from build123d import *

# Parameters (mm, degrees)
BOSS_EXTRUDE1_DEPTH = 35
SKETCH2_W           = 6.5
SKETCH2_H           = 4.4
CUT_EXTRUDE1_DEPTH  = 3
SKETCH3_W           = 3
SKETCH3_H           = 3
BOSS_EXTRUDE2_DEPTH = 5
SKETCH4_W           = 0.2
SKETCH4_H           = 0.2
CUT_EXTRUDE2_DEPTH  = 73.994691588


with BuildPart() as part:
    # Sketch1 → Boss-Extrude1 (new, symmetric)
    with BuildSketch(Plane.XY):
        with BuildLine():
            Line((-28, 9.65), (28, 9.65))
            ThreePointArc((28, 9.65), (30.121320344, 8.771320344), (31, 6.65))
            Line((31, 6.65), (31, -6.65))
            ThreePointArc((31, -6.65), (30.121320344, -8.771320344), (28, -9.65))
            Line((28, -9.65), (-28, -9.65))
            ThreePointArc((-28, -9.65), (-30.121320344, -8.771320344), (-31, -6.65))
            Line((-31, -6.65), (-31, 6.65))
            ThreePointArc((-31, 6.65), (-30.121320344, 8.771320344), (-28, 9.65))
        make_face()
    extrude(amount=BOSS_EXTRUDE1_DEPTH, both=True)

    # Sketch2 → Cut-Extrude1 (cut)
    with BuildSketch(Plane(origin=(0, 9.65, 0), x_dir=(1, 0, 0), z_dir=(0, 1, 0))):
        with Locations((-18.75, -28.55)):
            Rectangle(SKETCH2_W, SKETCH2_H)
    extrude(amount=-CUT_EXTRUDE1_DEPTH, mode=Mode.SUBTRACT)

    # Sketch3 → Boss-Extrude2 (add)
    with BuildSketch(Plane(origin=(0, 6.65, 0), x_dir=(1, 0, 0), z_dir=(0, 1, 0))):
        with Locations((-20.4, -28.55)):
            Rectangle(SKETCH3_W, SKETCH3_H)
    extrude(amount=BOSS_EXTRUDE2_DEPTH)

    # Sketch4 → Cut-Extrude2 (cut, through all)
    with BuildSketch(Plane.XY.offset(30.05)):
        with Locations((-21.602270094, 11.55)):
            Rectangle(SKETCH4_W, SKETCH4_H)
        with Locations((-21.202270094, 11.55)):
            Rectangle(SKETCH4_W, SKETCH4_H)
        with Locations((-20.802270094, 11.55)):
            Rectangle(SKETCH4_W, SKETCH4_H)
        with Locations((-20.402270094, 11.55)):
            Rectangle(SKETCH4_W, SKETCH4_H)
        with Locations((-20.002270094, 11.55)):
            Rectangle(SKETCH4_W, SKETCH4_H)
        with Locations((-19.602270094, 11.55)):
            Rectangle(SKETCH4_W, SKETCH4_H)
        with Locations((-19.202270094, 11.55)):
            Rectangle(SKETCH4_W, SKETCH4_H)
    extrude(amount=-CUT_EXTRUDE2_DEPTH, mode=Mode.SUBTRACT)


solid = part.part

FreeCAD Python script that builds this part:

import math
import FreeCAD as App
import Part
import Sketcher

V = App.Vector


def add_polygon(sketch, points):
    """Adds a closed chain of lines whose ends are joined by coincident constraints."""
    first, n = sketch.GeometryCount, len(points)
    for a, b in zip(points, points[1:] + points[:1]):
        sketch.addGeometry(Part.LineSegment(App.Vector(*a, 0), App.Vector(*b, 0)), False)
    for i in range(n):
        sketch.addConstraint(Sketcher.Constraint("Coincident", first + i, 2, first + (i + 1) % n, 1))

doc = App.newDocument("Part")
body = doc.addObject("PartDesign::Body", "Body")

sketch1 = body.newObject("Sketcher::SketchObject", "Sketch")
sketch1.AttachmentSupport = (doc.getObject("XY_Plane"), [""])
sketch1.MapMode = "FlatFace"
sketch1.addGeometry(Part.LineSegment(V(28, 9.7, 0), V(-28, 9.7, 0)), False)
sketch1.addGeometry(Part.ArcOfCircle(Part.Circle(V(-28, 6.7, 0), V(0, 0, 1), 3), math.radians(90), math.radians(180)), False)
sketch1.addGeometry(Part.LineSegment(V(-31, 6.7, 0), V(-31, -6.7, 0)), False)
sketch1.addGeometry(Part.ArcOfCircle(Part.Circle(V(-28, -6.7, 0), V(0, 0, 1), 3), math.radians(180), math.radians(270)), False)
sketch1.addGeometry(Part.LineSegment(V(-28, -9.7, 0), V(28, -9.7, 0)), False)
sketch1.addGeometry(Part.ArcOfCircle(Part.Circle(V(28, -6.7, 0), V(0, 0, 1), 3), math.radians(-90), math.radians(0)), False)
sketch1.addGeometry(Part.LineSegment(V(31, -6.7, 0), V(31, 6.7, 0)), False)
sketch1.addGeometry(Part.ArcOfCircle(Part.Circle(V(28, 6.7, 0), V(0, 0, 1), 3), math.radians(0), math.radians(90)), False)
sketch1.addConstraint(Sketcher.Constraint("Tangent", 0, 2, 1, 1))
sketch1.addConstraint(Sketcher.Constraint("Tangent", 1, 2, 2, 1))
sketch1.addConstraint(Sketcher.Constraint("Tangent", 2, 2, 3, 1))
sketch1.addConstraint(Sketcher.Constraint("Tangent", 3, 2, 4, 1))
sketch1.addConstraint(Sketcher.Constraint("Tangent", 4, 2, 5, 1))
sketch1.addConstraint(Sketcher.Constraint("Tangent", 5, 2, 6, 1))
sketch1.addConstraint(Sketcher.Constraint("Tangent", 6, 2, 7, 1))
sketch1.addConstraint(Sketcher.Constraint("Tangent", 7, 2, 0, 1))
sketch1.addConstraint(Sketcher.Constraint("Horizontal", 0))
sketch1.addConstraint(Sketcher.Constraint("Vertical", 2))
sketch1.addConstraint(Sketcher.Constraint("Horizontal", 4))
sketch1.addConstraint(Sketcher.Constraint("Vertical", 6))
sketch1.addConstraint(Sketcher.Constraint("Equal", 1, 3))
sketch1.addConstraint(Sketcher.Constraint("Equal", 3, 5))
sketch1.addConstraint(Sketcher.Constraint("Equal", 5, 7))
sketch1.addConstraint(Sketcher.Constraint("Symmetric", 1, 3, 5, 3, -1, 1))
sketch1.addConstraint(Sketcher.Constraint("Radius", 1, 3.0))
sketch1.addConstraint(Sketcher.Constraint("DistanceX", 0, 2, 0, 1, 56.0))
sketch1.addConstraint(Sketcher.Constraint("DistanceY", 2, 2, 2, 1, 13.3))
pad1 = body.newObject("PartDesign::Pad", "Pad")
pad1.Profile = sketch1
pad1.Length = 70
pad1.Midplane = True

sketch2 = body.newObject("Sketcher::SketchObject", "Sketch001")
sketch2.AttachmentSupport = (doc.getObject("XZ_Plane"), [""])
sketch2.MapMode = "FlatFace"
sketch2.AttachmentOffset = App.Placement(V(0, 0, -9.65), App.Rotation())
add_polygon(sketch2, [(-22, 26.4), (-22, 30.8), (-15.5, 30.8), (-15.5, 26.4)])
sketch2.addConstraint(Sketcher.Constraint("Vertical", 0))
sketch2.addConstraint(Sketcher.Constraint("Horizontal", 1))
sketch2.addConstraint(Sketcher.Constraint("Vertical", 2))
sketch2.addConstraint(Sketcher.Constraint("Horizontal", 3))
sketch2.addConstraint(Sketcher.Constraint("DistanceX", 1, 1, 1, 2, 6.5))
sketch2.addConstraint(Sketcher.Constraint("DistanceY", 0, 1, 0, 2, 4.4))
sketch2.addConstraint(Sketcher.Constraint("DistanceX", 0, 2, -1, 1, 22.0))
sketch2.addConstraint(Sketcher.Constraint("DistanceY", -1, 1, 0, 2, 30.75))
pocket1 = body.newObject("PartDesign::Pocket", "Pocket")
pocket1.Profile = sketch2
pocket1.Length = 3
pocket1.Reversed = True

sketch3 = body.newObject("Sketcher::SketchObject", "Sketch002")
sketch3.AttachmentSupport = (doc.getObject("XZ_Plane"), [""])
sketch3.MapMode = "FlatFace"
sketch3.AttachmentOffset = App.Placement(V(0, 0, -6.65), App.Rotation())
add_polygon(sketch3, [(-21.9, 27.1), (-21.9, 30.1), (-18.9, 30.1), (-18.9, 27.1)])
sketch3.addConstraint(Sketcher.Constraint("Vertical", 0))
sketch3.addConstraint(Sketcher.Constraint("Horizontal", 1))
sketch3.addConstraint(Sketcher.Constraint("Vertical", 2))
sketch3.addConstraint(Sketcher.Constraint("Horizontal", 3))
sketch3.addConstraint(Sketcher.Constraint("Equal", 3, 0))
sketch3.addConstraint(Sketcher.Constraint("DistanceX", 1, 1, 1, 2, 3.0))
sketch3.addConstraint(Sketcher.Constraint("DistanceX", 0, 2, -1, 1, 21.9))
sketch3.addConstraint(Sketcher.Constraint("DistanceY", -1, 1, 0, 2, 30.05))
pad2 = body.newObject("PartDesign::Pad", "Pad001")
pad2.Profile = sketch3
pad2.Length = 5
pad2.Reversed = True

sketch4 = body.newObject("Sketcher::SketchObject", "Sketch003")
sketch4.AttachmentSupport = (doc.getObject("XY_Plane"), [""])
sketch4.MapMode = "FlatFace"
sketch4.AttachmentOffset = App.Placement(V(0, 0, 30.05), App.Rotation())
add_polygon(sketch4, [(-21.7, 11.65), (-21.7, 11.45), (-21.5, 11.45), (-21.5, 11.65)])
add_polygon(sketch4, [(-21.3, 11.65), (-21.3, 11.45), (-21.1, 11.45), (-21.1, 11.65)])
add_polygon(sketch4, [(-20.9, 11.65), (-20.9, 11.45), (-20.7, 11.45), (-20.7, 11.65)])
add_polygon(sketch4, [(-20.5, 11.65), (-20.5, 11.45), (-20.3, 11.45), (-20.3, 11.65)])
add_polygon(sketch4, [(-20.1, 11.65), (-20.1, 11.45), (-19.9, 11.45), (-19.9, 11.65)])
add_polygon(sketch4, [(-19.7, 11.65), (-19.7, 11.45), (-19.5, 11.45), (-19.5, 11.65)])
add_polygon(sketch4, [(-19.3, 11.65), (-19.3, 11.45), (-19.1, 11.45), (-19.1, 11.65)])
sketch4.addConstraint(Sketcher.Constraint("Vertical", 0))
sketch4.addConstraint(Sketcher.Constraint("Horizontal", 1))
sketch4.addConstraint(Sketcher.Constraint("Vertical", 2))
sketch4.addConstraint(Sketcher.Constraint("Horizontal", 3))
sketch4.addConstraint(Sketcher.Constraint("Vertical", 4))
sketch4.addConstraint(Sketcher.Constraint("Horizontal", 5))
sketch4.addConstraint(Sketcher.Constraint("Vertical", 6))
sketch4.addConstraint(Sketcher.Constraint("Horizontal", 7))
sketch4.addConstraint(Sketcher.Constraint("Vertical", 8))
sketch4.addConstraint(Sketcher.Constraint("Horizontal", 9))
sketch4.addConstraint(Sketcher.Constraint("Vertical", 10))
sketch4.addConstraint(Sketcher.Constraint("Horizontal", 11))
sketch4.addConstraint(Sketcher.Constraint("Vertical", 12))
sketch4.addConstraint(Sketcher.Constraint("Horizontal", 13))
sketch4.addConstraint(Sketcher.Constraint("Vertical", 14))
sketch4.addConstraint(Sketcher.Constraint("Horizontal", 15))
sketch4.addConstraint(Sketcher.Constraint("Vertical", 16))
sketch4.addConstraint(Sketcher.Constraint("Horizontal", 17))
sketch4.addConstraint(Sketcher.Constraint("Vertical", 18))
sketch4.addConstraint(Sketcher.Constraint("Horizontal", 19))
sketch4.addConstraint(Sketcher.Constraint("Vertical", 20))
sketch4.addConstraint(Sketcher.Constraint("Horizontal", 21))
sketch4.addConstraint(Sketcher.Constraint("Vertical", 22))
sketch4.addConstraint(Sketcher.Constraint("Horizontal", 23))
sketch4.addConstraint(Sketcher.Constraint("Vertical", 24))
sketch4.addConstraint(Sketcher.Constraint("Horizontal", 25))
sketch4.addConstraint(Sketcher.Constraint("Vertical", 26))
sketch4.addConstraint(Sketcher.Constraint("Horizontal", 27))
sketch4.addConstraint(Sketcher.Constraint("Horizontal", 1, 2, 4, 2))
sketch4.addConstraint(Sketcher.Constraint("Horizontal", 3, 2, 6, 2))
sketch4.addConstraint(Sketcher.Constraint("Horizontal", 5, 2, 8, 2))
sketch4.addConstraint(Sketcher.Constraint("Horizontal", 7, 2, 10, 2))
sketch4.addConstraint(Sketcher.Constraint("Horizontal", 9, 2, 12, 2))
sketch4.addConstraint(Sketcher.Constraint("Horizontal", 11, 2, 14, 2))
sketch4.addConstraint(Sketcher.Constraint("Horizontal", 13, 2, 16, 2))
sketch4.addConstraint(Sketcher.Constraint("Horizontal", 15, 2, 18, 2))
sketch4.addConstraint(Sketcher.Constraint("Horizontal", 17, 2, 20, 2))
sketch4.addConstraint(Sketcher.Constraint("Horizontal", 19, 2, 22, 2))
sketch4.addConstraint(Sketcher.Constraint("Horizontal", 21, 2, 24, 2))
sketch4.addConstraint(Sketcher.Constraint("Horizontal", 23, 2, 26, 2))
sketch4.addConstraint(Sketcher.Constraint("Equal", 3, 5))
sketch4.addConstraint(Sketcher.Constraint("Equal", 7, 9))
sketch4.addConstraint(Sketcher.Constraint("Equal", 11, 13))
sketch4.addConstraint(Sketcher.Constraint("Equal", 15, 17))
sketch4.addConstraint(Sketcher.Constraint("Equal", 19, 21))
sketch4.addConstraint(Sketcher.Constraint("Equal", 23, 25))
sketch4.addConstraint(Sketcher.Constraint("Equal", 27, 0))
sketch4.addConstraint(Sketcher.Constraint("DistanceX", 1, 1, 1, 2, 0.2))
sketch4.addConstraint(Sketcher.Constraint("DistanceX", 1, 2, 4, 2, 0.2))
sketch4.addConstraint(Sketcher.Constraint("DistanceX", 5, 2, 8, 2, 0.2))
sketch4.addConstraint(Sketcher.Constraint("DistanceX", 9, 2, 12, 2, 0.2))
sketch4.addConstraint(Sketcher.Constraint("DistanceX", 13, 2, 16, 2, 0.2))
sketch4.addConstraint(Sketcher.Constraint("DistanceX", 17, 2, 20, 2, 0.2))
sketch4.addConstraint(Sketcher.Constraint("DistanceX", 21, 2, 24, 2, 0.2))
sketch4.addConstraint(Sketcher.Constraint("DistanceY", -1, 1, 0, 2, 11.45))
sketch4.addConstraint(Sketcher.Constraint("DistanceX", 0, 2, -1, 1, 21.70227))
pocket2 = body.newObject("PartDesign::Pocket", "Pocket001")
pocket2.Profile = sketch4
pocket2.Type = "ThroughAll"

doc.recompute()
